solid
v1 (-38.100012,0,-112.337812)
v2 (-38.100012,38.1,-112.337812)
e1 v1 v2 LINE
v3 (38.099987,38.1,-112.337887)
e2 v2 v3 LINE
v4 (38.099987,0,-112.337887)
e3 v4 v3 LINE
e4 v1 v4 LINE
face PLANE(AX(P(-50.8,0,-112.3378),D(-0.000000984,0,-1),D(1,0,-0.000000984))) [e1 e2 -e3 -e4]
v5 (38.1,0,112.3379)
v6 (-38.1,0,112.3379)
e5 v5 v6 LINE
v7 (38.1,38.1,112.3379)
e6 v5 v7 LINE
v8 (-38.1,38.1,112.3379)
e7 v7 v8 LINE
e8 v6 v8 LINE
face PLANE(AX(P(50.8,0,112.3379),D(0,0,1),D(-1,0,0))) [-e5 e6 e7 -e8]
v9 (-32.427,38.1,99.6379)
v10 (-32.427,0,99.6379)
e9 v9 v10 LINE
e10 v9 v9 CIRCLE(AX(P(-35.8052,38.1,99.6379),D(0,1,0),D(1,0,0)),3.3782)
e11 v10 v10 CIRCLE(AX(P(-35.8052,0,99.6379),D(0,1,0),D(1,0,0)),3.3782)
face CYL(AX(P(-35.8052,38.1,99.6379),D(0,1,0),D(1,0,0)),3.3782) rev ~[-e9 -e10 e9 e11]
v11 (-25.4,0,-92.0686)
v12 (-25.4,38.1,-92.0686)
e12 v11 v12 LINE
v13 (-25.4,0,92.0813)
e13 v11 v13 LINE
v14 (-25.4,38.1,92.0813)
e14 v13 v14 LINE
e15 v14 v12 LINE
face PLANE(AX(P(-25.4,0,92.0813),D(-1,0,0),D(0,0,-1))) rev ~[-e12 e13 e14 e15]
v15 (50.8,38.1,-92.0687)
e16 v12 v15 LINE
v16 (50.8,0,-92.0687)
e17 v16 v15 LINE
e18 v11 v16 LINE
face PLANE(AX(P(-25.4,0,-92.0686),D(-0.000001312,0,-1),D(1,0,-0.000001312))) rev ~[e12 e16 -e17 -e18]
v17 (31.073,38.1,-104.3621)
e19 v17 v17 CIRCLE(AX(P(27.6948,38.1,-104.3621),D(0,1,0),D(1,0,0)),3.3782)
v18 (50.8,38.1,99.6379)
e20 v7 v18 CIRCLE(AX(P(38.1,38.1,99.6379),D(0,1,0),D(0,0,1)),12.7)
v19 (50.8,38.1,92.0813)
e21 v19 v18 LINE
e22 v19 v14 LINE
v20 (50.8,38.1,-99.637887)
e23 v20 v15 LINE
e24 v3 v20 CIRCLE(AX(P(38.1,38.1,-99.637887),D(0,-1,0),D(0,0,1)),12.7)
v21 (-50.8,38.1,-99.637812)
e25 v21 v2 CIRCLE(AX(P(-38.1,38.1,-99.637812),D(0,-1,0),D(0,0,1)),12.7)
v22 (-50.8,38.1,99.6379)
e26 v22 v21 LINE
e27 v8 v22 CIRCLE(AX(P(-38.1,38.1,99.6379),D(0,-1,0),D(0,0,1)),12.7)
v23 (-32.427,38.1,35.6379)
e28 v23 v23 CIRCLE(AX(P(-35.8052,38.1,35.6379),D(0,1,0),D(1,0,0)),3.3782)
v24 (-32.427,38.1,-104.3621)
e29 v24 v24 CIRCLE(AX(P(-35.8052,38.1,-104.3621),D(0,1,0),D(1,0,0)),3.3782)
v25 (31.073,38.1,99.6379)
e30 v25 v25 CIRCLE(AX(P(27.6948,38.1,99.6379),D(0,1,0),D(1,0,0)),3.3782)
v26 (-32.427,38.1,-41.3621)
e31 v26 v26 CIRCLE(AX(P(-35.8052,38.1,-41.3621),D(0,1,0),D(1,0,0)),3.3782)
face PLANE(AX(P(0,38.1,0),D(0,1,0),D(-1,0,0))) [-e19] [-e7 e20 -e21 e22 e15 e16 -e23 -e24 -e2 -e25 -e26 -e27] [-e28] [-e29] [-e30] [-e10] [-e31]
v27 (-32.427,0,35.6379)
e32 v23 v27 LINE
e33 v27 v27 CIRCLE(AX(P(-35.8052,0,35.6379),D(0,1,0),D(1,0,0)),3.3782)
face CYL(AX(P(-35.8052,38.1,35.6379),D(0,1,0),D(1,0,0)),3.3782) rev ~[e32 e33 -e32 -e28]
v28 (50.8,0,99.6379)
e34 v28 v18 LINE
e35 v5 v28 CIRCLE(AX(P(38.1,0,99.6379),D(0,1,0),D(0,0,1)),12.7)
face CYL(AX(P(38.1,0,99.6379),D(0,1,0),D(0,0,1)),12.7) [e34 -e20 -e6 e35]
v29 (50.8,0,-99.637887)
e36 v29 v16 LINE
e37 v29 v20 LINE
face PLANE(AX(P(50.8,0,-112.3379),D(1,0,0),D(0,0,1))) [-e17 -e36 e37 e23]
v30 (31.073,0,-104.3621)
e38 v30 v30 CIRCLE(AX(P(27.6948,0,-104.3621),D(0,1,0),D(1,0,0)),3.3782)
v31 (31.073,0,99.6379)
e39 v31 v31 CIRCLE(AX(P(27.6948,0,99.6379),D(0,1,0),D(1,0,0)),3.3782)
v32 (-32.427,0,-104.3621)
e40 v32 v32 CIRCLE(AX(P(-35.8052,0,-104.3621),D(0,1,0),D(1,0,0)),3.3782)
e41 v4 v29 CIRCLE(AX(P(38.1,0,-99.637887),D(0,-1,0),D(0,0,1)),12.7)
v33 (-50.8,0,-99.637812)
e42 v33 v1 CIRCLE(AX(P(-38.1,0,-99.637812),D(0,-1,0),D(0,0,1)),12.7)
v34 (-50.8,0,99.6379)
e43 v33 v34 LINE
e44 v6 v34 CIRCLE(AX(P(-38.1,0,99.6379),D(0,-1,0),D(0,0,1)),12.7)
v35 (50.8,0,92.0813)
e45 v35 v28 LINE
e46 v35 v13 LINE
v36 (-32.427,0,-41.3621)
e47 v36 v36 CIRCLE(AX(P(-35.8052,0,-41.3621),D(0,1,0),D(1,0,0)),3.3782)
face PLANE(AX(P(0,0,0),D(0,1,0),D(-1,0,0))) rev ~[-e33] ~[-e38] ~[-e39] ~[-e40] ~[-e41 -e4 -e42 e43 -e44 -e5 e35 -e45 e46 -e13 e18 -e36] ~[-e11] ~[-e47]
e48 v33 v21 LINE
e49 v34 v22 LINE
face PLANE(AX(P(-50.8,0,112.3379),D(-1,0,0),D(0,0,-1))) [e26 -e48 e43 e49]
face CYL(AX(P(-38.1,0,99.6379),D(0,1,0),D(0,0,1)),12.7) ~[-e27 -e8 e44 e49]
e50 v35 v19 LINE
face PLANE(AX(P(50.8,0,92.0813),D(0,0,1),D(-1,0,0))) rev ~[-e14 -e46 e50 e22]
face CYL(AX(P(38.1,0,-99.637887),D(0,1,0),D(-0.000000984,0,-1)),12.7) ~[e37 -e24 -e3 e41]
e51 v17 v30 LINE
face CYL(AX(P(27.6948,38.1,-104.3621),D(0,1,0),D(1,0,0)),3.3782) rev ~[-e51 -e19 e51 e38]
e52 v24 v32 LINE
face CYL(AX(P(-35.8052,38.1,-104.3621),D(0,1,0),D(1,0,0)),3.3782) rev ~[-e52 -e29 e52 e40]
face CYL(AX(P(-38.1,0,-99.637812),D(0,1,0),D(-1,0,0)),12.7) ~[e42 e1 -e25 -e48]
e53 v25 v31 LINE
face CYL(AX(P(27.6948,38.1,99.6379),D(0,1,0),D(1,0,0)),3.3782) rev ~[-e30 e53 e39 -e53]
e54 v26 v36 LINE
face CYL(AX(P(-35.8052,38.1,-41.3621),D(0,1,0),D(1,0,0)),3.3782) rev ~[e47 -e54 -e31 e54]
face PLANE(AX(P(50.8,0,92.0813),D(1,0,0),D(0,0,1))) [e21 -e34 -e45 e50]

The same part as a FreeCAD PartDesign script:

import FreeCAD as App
import Part
import Sketcher
Q = App.Units.Quantity


def edges_at(feature, points):
    """Names of the edges that pass closest to the given points."""
    edges = feature.Shape.Edges
    near = lambda p: min(range(len(edges)), key=lambda i: edges[i].distToShape(Part.Vertex(*p))[0])
    return sorted({f"Edge{near(p) + 1}" for p in points})


def add_polygon(sketch, points):
    """Adds a closed chain of lines whose ends are joined by coincident constraints."""
    first, n = sketch.GeometryCount, len(points)
    for a, b in zip(points, points[1:] + points[:1]):
        sketch.addGeometry(Part.LineSegment(App.Vector(*a, 0), App.Vector(*b, 0)), False)
    for i in range(n):
        sketch.addConstraint(Sketcher.Constraint("Coincident", first + i, 2, first + (i + 1) % n, 1))

doc = App.newDocument("Part")
params = doc.addObject("Spreadsheet::Sheet", "Params")
for row, (alias, value) in enumerate([
    ("sketch1_width", "4 in"),
    ("sketch1_width2", "3 in"),
    ("sketch1_height", "7.25 in"),
    ("sketch1_height2", "0.798 in"),
    ("pad1_length", "1.5 in"),
    ("fillet_radius", "0.5 in"),
    ("sketch2_diameter", "0.266 in"),
], start=1):
    params.set(f"A{row}", alias)
    params.set(f"B{row}", "=" + value)
    params.setAlias(f"B{row}", alias)

body = doc.addObject("PartDesign::Body", "Body")

# Sketch on XZ plane
sketch1 = body.newObject("Sketcher::SketchObject", "Sketch")
sketch1.AttachmentSupport = (doc.getObject("XZ_Plane"), [""])
sketch1.MapMode = "FlatFace"
add_polygon(sketch1, [(-51, 112), (51, 112), (51, 92), (-25, 92), (-25, -92), (51, -92), (51, -112), (-51, -112)])  # lines 0-7
sketch1.addConstraint([
    Sketcher.Constraint("Horizontal", 0),
    Sketcher.Constraint("Vertical", 1),
    Sketcher.Constraint("Horizontal", 2),
    Sketcher.Constraint("Vertical", 3),
    Sketcher.Constraint("Horizontal", 4),
    Sketcher.Constraint("Vertical", 5),
    Sketcher.Constraint("Horizontal", 6),
    Sketcher.Constraint("Vertical", 7),
    Sketcher.Constraint("Symmetric", 0, 2, 6, 2, -1, 1),
    Sketcher.Constraint("Vertical", 1, 2, 4, 2),
    Sketcher.Constraint("DistanceX", 0, 1, 0, 2, Q("4 in")),
    Sketcher.Constraint("DistanceX", 2, 2, 2, 1, Q("3 in")),
    Sketcher.Constraint("DistanceY", 3, 2, 3, 1, Q("7.25 in")),
    Sketcher.Constraint("DistanceY", 5, 2, 5, 1, Q("0.798 in")),
    Sketcher.Constraint("DistanceY", 1, 2, 1, 1, Q("0.7975 in")),
])
sketch1.setExpression("Constraints[18]", "Params.sketch1_width")
sketch1.setExpression("Constraints[19]", "Params.sketch1_width2")
sketch1.setExpression("Constraints[20]", "Params.sketch1_height")
sketch1.setExpression("Constraints[21]", "Params.sketch1_height2")
pad1 = body.newObject("PartDesign::Pad", "Pad")
pad1.Profile = sketch1
pad1.setExpression("Length", "Params.pad1_length")
pad1.Reversed = True
doc.recompute()

fillet = body.newObject("PartDesign::Fillet", "Fillet")
fillet.Base = (pad1, edges_at(pad1, [
    (50.8, 19.05, 112.338),
    (-50.8, 19.05, 112.338),
    (-50.8, 19.05, -112.338),
    (50.8, 19.05, -112.338),
]))
fillet.setExpression("Radius", "Params.fillet_radius")

# Sketch on XZ plane
sketch2 = body.newObject("Sketcher::SketchObject", "Sketch001")
sketch2.AttachmentSupport = (doc.getObject("XZ_Plane"), [""])
sketch2.MapMode = "FlatFace"
sketch2.AttachmentOffset = App.Placement(App.Vector(0, 0, -1.5 * 25.4), App.Rotation())
sketch2.addGeometry([
    Part.Circle(App.Vector(-35.8, 99.6, 0), App.Vector(0, 0, 1), 3.4),  # 0
    Part.Circle(App.Vector(-35.8, -104.4, 0), App.Vector(0, 0, 1), 3.4),  # 1
    Part.Circle(App.Vector(-35.8, 35.6, 0), App.Vector(0, 0, 1), 3.4),  # 2
    Part.Circle(App.Vector(-35.8, -41.4, 0), App.Vector(0, 0, 1), 3.4),  # 3
    Part.Circle(App.Vector(27.7, 99.6, 0), App.Vector(0, 0, 1), 3.4),  # 4
    Part.Circle(App.Vector(27.7, -104.4, 0), App.Vector(0, 0, 1), 3.4),  # 5
], False)
sketch2.addConstraint([
    Sketcher.Constraint("Equal", 0, 1),
    Sketcher.Constraint("Equal", 1, 2),
    Sketcher.Constraint("Equal", 2, 3),
    Sketcher.Constraint("Equal", 3, 4),
    Sketcher.Constraint("Equal", 4, 5),
    Sketcher.Constraint("Horizontal", 0, 3, 4, 3),
    Sketcher.Constraint("Horizontal", 1, 3, 5, 3),
    Sketcher.Constraint("Vertical", 0, 3, 1, 3),
    Sketcher.Constraint("Vertical", 1, 3, 2, 3),
    Sketcher.Constraint("Vertical", 2, 3, 3, 3),
    Sketcher.Constraint("Vertical", 4, 3, 5, 3),
    Sketcher.Constraint("Diameter", 0, Q("0.266 in")),
    Sketcher.Constraint("DistanceX", 0, 3, 4, 3, Q("2.5 in")),
    Sketcher.Constraint("DistanceY", 1, 3, 0, 3, Q("8.0315 in")),
    Sketcher.Constraint("DistanceY", 2, 3, 0, 3, Q("64 mm")),
    Sketcher.Constraint("DistanceY", 3, 3, 0, 3, Q("141 mm")),
    Sketcher.Constraint("DistanceX", 0, 3, -1, 1, Q("35.8052 mm")),
    Sketcher.Constraint("DistanceY", -1, 1, 0, 3, Q("99.638 mm")),
])
sketch2.setExpression("Constraints[11]", "Params.sketch2_diameter")
pocket1 = body.newObject("PartDesign::Pocket", "Pocket")
pocket1.Profile = sketch2
pocket1.Type = "ThroughAll"
pocket1.Reversed = True

doc.recompute()
